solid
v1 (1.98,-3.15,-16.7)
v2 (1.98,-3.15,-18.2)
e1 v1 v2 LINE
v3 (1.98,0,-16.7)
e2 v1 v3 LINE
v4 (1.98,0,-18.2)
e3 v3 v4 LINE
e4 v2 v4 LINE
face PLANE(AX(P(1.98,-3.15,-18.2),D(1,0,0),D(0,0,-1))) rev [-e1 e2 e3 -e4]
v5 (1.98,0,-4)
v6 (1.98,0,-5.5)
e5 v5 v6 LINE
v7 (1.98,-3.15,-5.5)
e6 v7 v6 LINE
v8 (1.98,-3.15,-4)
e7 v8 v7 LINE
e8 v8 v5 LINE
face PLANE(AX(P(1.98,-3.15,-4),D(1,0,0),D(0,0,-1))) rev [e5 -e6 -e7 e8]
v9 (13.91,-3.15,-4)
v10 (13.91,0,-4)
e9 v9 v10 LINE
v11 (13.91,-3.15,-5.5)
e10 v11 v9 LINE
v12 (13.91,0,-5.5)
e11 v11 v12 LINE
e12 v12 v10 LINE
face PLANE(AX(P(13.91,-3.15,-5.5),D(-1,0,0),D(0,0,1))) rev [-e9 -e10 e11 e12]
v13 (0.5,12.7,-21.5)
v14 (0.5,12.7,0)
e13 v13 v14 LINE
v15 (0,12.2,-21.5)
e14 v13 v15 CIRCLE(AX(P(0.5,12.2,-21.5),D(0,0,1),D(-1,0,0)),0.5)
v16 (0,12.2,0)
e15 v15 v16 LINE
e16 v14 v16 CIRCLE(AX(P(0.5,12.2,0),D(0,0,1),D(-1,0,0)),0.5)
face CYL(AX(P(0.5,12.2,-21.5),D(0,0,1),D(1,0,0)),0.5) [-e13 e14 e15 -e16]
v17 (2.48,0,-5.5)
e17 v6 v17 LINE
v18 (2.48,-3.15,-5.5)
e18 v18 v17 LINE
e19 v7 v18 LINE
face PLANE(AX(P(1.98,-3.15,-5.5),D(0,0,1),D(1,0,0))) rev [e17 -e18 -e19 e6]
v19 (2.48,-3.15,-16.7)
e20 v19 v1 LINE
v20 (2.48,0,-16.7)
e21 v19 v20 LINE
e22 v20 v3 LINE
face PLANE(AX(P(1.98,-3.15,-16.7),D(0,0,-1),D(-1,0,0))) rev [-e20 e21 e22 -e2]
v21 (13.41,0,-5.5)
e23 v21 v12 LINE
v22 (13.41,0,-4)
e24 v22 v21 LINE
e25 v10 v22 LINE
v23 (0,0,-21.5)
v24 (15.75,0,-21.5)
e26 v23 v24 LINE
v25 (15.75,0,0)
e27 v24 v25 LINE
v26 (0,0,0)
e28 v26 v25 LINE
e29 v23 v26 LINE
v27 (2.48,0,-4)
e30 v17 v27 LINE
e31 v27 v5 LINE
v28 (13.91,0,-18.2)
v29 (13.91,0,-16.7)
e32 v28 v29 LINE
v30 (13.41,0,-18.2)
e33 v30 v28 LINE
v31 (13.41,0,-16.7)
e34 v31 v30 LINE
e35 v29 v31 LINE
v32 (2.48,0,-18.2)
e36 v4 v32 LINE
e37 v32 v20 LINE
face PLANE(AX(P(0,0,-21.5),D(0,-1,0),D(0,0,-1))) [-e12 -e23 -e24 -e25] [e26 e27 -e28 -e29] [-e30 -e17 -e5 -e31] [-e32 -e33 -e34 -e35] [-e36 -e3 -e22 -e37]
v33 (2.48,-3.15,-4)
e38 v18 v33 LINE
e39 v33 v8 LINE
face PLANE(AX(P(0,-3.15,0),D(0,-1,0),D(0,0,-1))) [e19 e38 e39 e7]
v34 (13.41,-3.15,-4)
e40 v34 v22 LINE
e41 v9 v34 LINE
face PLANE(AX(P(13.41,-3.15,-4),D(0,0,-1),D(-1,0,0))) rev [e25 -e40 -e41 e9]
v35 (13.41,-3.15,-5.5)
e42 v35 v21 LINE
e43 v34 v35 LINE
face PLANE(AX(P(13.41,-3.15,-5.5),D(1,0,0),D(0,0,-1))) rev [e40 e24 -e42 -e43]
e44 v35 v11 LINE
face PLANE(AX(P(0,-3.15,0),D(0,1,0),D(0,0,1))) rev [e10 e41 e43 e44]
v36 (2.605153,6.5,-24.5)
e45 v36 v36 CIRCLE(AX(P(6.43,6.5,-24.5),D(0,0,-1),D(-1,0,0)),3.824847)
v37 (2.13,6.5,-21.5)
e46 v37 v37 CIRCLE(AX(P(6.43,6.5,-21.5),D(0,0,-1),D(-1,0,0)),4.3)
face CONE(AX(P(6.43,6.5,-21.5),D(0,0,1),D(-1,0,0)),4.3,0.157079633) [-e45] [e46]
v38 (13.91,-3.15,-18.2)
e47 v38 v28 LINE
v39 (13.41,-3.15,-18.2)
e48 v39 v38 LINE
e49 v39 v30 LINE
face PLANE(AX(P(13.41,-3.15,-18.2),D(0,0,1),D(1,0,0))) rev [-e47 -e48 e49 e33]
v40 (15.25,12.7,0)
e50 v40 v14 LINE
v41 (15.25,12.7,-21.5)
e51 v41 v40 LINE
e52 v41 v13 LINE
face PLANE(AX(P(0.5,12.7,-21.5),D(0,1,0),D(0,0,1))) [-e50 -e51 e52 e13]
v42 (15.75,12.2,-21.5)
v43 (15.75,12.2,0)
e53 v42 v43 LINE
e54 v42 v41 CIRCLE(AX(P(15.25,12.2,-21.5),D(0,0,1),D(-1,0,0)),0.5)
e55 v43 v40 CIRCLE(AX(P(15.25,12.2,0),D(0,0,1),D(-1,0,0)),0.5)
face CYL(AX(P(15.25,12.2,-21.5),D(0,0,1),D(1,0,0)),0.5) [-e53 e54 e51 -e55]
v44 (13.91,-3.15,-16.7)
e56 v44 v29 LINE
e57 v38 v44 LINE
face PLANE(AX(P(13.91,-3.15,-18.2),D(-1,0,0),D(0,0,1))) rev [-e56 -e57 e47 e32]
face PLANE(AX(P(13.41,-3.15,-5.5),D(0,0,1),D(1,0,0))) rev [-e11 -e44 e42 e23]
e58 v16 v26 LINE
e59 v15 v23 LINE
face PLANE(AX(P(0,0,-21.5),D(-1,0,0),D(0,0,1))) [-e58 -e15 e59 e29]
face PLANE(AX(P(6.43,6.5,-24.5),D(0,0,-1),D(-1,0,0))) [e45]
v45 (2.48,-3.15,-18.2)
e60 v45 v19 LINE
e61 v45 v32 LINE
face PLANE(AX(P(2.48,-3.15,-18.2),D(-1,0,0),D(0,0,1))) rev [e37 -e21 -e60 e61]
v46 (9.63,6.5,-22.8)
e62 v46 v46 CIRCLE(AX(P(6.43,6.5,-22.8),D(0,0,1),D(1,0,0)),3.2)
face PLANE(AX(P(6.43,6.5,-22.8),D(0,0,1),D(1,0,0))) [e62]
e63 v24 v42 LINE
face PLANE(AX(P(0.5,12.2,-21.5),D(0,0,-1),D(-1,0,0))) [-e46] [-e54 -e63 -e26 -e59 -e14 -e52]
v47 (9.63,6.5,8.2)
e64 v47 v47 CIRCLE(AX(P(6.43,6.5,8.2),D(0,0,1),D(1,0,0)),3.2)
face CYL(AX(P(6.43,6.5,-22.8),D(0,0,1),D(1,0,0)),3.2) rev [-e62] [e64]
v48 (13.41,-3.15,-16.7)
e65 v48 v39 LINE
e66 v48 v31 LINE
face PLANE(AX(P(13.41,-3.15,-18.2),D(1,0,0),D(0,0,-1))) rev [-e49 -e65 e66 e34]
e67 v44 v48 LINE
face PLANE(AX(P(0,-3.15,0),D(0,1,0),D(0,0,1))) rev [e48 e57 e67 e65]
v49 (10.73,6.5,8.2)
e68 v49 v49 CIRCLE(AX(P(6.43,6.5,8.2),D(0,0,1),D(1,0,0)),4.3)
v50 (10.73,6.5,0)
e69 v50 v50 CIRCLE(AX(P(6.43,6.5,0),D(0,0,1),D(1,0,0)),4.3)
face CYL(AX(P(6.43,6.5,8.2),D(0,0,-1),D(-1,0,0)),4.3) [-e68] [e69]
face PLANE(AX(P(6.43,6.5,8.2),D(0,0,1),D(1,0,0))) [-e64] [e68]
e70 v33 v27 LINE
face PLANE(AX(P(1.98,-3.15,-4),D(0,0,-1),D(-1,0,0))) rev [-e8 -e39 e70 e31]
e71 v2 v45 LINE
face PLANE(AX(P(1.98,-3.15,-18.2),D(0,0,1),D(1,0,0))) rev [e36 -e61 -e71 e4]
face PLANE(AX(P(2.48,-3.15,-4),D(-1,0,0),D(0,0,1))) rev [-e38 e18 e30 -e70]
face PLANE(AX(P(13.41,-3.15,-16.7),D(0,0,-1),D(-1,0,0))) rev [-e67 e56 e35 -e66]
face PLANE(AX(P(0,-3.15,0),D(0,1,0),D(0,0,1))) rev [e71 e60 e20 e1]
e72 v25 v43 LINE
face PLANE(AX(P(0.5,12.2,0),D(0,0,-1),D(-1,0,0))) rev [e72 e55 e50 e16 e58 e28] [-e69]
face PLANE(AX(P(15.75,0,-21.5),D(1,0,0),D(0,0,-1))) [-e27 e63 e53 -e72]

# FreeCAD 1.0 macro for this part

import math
import FreeCAD as App
import Part
import Sketcher

doc = App.newDocument("Part")
body = doc.addObject("PartDesign::Body", "Body")

# Sketch on XY plane
sketch1 = body.newObject("Sketcher::SketchObject", "Sketch")
sketch1.AttachmentSupport = (doc.getObject("XY_Plane"), [""])
sketch1.MapMode = "FlatFace"
sketch1.addGeometry([
    Part.LineSegment(App.Vector(0, 0, 0), App.Vector(15.75, 0, 0)),  # 0
    Part.LineSegment(App.Vector(15.75, 0, 0), App.Vector(15.75, 12.2, 0)),  # 1
    Part.ArcOfCircle(Part.Circle(App.Vector(15.25, 12.2, 0), App.Vector(0, 0, 1), 0.5), math.radians(0), math.radians(90)),  # 2
    Part.LineSegment(App.Vector(15.25, 12.7, 0), App.Vector(0.5, 12.7, 0)),  # 3
    Part.ArcOfCircle(Part.Circle(App.Vector(0.5, 12.2, 0), App.Vector(0, 0, 1), 0.5), math.radians(90), math.radians(180)),  # 4
    Part.LineSegment(App.Vector(0, 12.2, 0), App.Vector(0, 0, 0)),  # 5
], False)
sketch1.addConstraint([
    Sketcher.Constraint("Coincident", 0, 2, 1, 1),
    Sketcher.Constraint("Tangent", 1, 2, 2, 1),
    Sketcher.Constraint("Tangent", 2, 2, 3, 1),
    Sketcher.Constraint("Tangent", 3, 2, 4, 1),
    Sketcher.Constraint("Tangent", 4, 2, 5, 1),
    Sketcher.Constraint("Coincident", 5, 2, 0, 1),
    Sketcher.Constraint("Horizontal", 0),
    Sketcher.Constraint("Vertical", 1),
    Sketcher.Constraint("Horizontal", 3),
    Sketcher.Constraint("Vertical", 5),
    Sketcher.Constraint("Coincident", 5, 2, -1, 1),
    Sketcher.Constraint("Equal", 2, 4),
    Sketcher.Constraint("Radius", 2, 0.5),
    Sketcher.Constraint("DistanceY", 1, 1, 1, 2, 12.2),
    Sketcher.Constraint("DistanceX", 0, 1, 0, 2, 15.75),
])
pad1 = body.newObject("PartDesign::Pad", "Pad")
pad1.Profile = sketch1
pad1.Length = 21.5
pad1.Reversed = True

# Sketch on XY plane
sketch2 = body.newObject("Sketcher::SketchObject", "Sketch001")
sketch2.AttachmentSupport = (doc.getObject("XY_Plane"), [""])
sketch2.MapMode = "FlatFace"
sketch2.addGeometry(Part.Circle(App.Vector(6.4, 6.5, 0), App.Vector(0, 0, 1), 4.3), False)
sketch2.addConstraint([
    Sketcher.Constraint("Diameter", 0, 8.6),
    Sketcher.Constraint("DistanceY", -1, 1, 0, 3, 6.5),
    Sketcher.Constraint("DistanceX", -1, 1, 0, 3, 6.43),
])
pad2 = body.newObject("PartDesign::Pad", "Pad001")
pad2.Profile = sketch2
pad2.Length = 8.2

# Sketch on XY plane
sketch3 = body.newObject("Sketcher::SketchObject", "Sketch002")
sketch3.AttachmentSupport = (doc.getObject("XY_Plane"), [""])
sketch3.MapMode = "FlatFace"
sketch3.AttachmentOffset = App.Placement(App.Vector(0, 0, -21.5), App.Rotation())
sketch3.addGeometry(Part.Circle(App.Vector(6.4, 6.5, 0), App.Vector(0, 0, 1), 4.3), False)
sketch3.addConstraint([
    Sketcher.Constraint("Diameter", 0, 8.6),
    Sketcher.Constraint("DistanceY", -1, 1, 0, 3, 6.5),
    Sketcher.Constraint("DistanceX", -1, 1, 0, 3, 6.43),
])
pad3 = body.newObject("PartDesign::Pad", "Pad002")
pad3.Profile = sketch3
pad3.Length = 3
pad3.Reversed = True
pad3.TaperAngle = -9

# Sketch on XY plane
sketch4 = body.newObject("Sketcher::SketchObject", "Sketch003")
sketch4.AttachmentSupport = (doc.getObject("XY_Plane"), [""])
sketch4.MapMode = "FlatFace"
sketch4.AttachmentOffset = App.Placement(App.Vector(0, 0, 8.2), App.Rotation())
sketch4.addGeometry(Part.Circle(App.Vector(6.4, 6.5, 0), App.Vector(0, 0, 1), 3.2), False)
sketch4.addConstraint([
    Sketcher.Constraint("Diameter", 0, 6.4),
    Sketcher.Constraint("DistanceY", -1, 1, 0, 3, 6.5),
    Sketcher.Constraint("DistanceX", -1, 1, 0, 3, 6.43),
])
pocket1 = body.newObject("PartDesign::Pocket", "Pocket")
pocket1.Profile = sketch4
pocket1.Length = 31

# Sketch on XZ plane
sketch5 = body.newObject("Sketcher::SketchObject", "Sketch004")
sketch5.AttachmentSupport = (doc.getObject("XZ_Plane"), [""])
sketch5.MapMode = "FlatFace"
sketch5.addGeometry([
    Part.LineSegment(App.Vector(2, -4, 0), App.Vector(2, -5.5, 0)),  # 0
    Part.LineSegment(App.Vector(2, -5.5, 0), App.Vector(2.5, -5.5, 0)),  # 1
    Part.LineSegment(App.Vector(2.5, -5.5, 0), App.Vector(2.5, -4, 0)),  # 2
    Part.LineSegment(App.Vector(2.5, -4, 0), App.Vector(2, -4, 0)),  # 3
    Part.LineSegment(App.Vector(13.4, -4, 0), App.Vector(13.4, -5.5, 0)),  # 4
    Part.LineSegment(App.Vector(13.4, -5.5, 0), App.Vector(13.9, -5.5, 0)),  # 5
    Part.LineSegment(App.Vector(13.9, -5.5, 0), App.Vector(13.9, -4, 0)),  # 6
    Part.LineSegment(App.Vector(13.9, -4, 0), App.Vector(13.4, -4, 0)),  # 7
    Part.LineSegment(App.Vector(2, -16.7, 0), App.Vector(2, -18.2, 0)),  # 8
    Part.LineSegment(App.Vector(2, -18.2, 0), App.Vector(2.5, -18.2, 0)),  # 9
    Part.LineSegment(App.Vector(2.5, -18.2, 0), App.Vector(2.5, -16.7, 0)),  # 10
    Part.LineSegment(App.Vector(2.5, -16.7, 0), App.Vector(2, -16.7, 0)),  # 11
    Part.LineSegment(App.Vector(13.4, -16.7, 0), App.Vector(13.4, -18.2, 0)),  # 12
    Part.LineSegment(App.Vector(13.4, -18.2, 0), App.Vector(13.9, -18.2, 0)),  # 13
    Part.LineSegment(App.Vector(13.9, -18.2, 0), App.Vector(13.9, -16.7, 0)),  # 14
    Part.LineSegment(App.Vector(13.9, -16.7, 0), App.Vector(13.4, -16.7, 0)),  # 15
], False)
sketch5.addConstraint([
    Sketcher.Constraint("Coincident", 0, 2, 1, 1),
    Sketcher.Constraint("Coincident", 1, 2, 2, 1),
    Sketcher.Constraint("Coincident", 2, 2, 3, 1),
    Sketcher.Constraint("Coincident", 3, 2, 0, 1),
    Sketcher.Constraint("Coincident", 4, 2, 5, 1),
    Sketcher.Constraint("Coincident", 5, 2, 6, 1),
    Sketcher.Constraint("Coincident", 6, 2, 7, 1),
    Sketcher.Constraint("Coincident", 7, 2, 4, 1),
    Sketcher.Constraint("Coincident", 8, 2, 9, 1),
    Sketcher.Constraint("Coincident", 9, 2, 10, 1),
    Sketcher.Constraint("Coincident", 10, 2, 11, 1),
    Sketcher.Constraint("Coincident", 11, 2, 8, 1),
    Sketcher.Constraint("Coincident", 12, 2, 13, 1),
    Sketcher.Constraint("Coincident", 13, 2, 14, 1),
    Sketcher.Constraint("Coincident", 14, 2, 15, 1),
    Sketcher.Constraint("Coincident", 15, 2, 12, 1),
    Sketcher.Constraint("Vertical", 0),
    Sketcher.Constraint("Horizontal", 1),
    Sketcher.Constraint("Vertical", 2),
    Sketcher.Constraint("Horizontal", 3),
    Sketcher.Constraint("Vertical", 4),
    Sketcher.Constraint("Horizontal", 5),
    Sketcher.Constraint("Vertical", 6),
    Sketcher.Constraint("Horizontal", 7),
    Sketcher.Constraint("Vertical", 8),
    Sketcher.Constraint("Horizontal", 9),
    Sketcher.Constraint("Vertical", 10),
    Sketcher.Constraint("Horizontal", 11),
    Sketcher.Constraint("Vertical", 12),
    Sketcher.Constraint("Horizontal", 13),
    Sketcher.Constraint("Vertical", 14),
    Sketcher.Constraint("Horizontal", 15),
    Sketcher.Constraint("Horizontal", 1, 2, 4, 2),
    Sketcher.Constraint("Horizontal", 3, 2, 6, 2),
    Sketcher.Constraint("Horizontal", 9, 2, 12, 2),
    Sketcher.Constraint("Horizontal", 11, 2, 14, 2),
    Sketcher.Constraint("Vertical", 3, 2, 8, 2),
    Sketcher.Constraint("Vertical", 2, 2, 9, 2),
    Sketcher.Constraint("Vertical", 7, 2, 12, 2),
    Sketcher.Constraint("Vertical", 6, 2, 13, 2),
    Sketcher.Constraint("Equal", 3, 5),
    Sketcher.Constraint("Equal", 6, 8),
    Sketcher.Constraint("DistanceX", 1, 1, 1, 2, 0.5),
    Sketcher.Constraint("DistanceY", 0, 2, 0, 1, 1.5),
    Sketcher.Constraint("DistanceY", 2, 2, -1, 1, 4.0),
    Sketcher.Constraint("DistanceY", 8, 2, -1, 1, 18.2),
    Sketcher.Constraint("DistanceX", -1, 1, 0, 2, 1.98),
    Sketcher.Constraint("DistanceX", -1, 1, 4, 2, 13.41),
])
pad4 = body.newObject("PartDesign::Pad", "Pad003")
pad4.Profile = sketch5
pad4.Length = 3.15

doc.recompute()
